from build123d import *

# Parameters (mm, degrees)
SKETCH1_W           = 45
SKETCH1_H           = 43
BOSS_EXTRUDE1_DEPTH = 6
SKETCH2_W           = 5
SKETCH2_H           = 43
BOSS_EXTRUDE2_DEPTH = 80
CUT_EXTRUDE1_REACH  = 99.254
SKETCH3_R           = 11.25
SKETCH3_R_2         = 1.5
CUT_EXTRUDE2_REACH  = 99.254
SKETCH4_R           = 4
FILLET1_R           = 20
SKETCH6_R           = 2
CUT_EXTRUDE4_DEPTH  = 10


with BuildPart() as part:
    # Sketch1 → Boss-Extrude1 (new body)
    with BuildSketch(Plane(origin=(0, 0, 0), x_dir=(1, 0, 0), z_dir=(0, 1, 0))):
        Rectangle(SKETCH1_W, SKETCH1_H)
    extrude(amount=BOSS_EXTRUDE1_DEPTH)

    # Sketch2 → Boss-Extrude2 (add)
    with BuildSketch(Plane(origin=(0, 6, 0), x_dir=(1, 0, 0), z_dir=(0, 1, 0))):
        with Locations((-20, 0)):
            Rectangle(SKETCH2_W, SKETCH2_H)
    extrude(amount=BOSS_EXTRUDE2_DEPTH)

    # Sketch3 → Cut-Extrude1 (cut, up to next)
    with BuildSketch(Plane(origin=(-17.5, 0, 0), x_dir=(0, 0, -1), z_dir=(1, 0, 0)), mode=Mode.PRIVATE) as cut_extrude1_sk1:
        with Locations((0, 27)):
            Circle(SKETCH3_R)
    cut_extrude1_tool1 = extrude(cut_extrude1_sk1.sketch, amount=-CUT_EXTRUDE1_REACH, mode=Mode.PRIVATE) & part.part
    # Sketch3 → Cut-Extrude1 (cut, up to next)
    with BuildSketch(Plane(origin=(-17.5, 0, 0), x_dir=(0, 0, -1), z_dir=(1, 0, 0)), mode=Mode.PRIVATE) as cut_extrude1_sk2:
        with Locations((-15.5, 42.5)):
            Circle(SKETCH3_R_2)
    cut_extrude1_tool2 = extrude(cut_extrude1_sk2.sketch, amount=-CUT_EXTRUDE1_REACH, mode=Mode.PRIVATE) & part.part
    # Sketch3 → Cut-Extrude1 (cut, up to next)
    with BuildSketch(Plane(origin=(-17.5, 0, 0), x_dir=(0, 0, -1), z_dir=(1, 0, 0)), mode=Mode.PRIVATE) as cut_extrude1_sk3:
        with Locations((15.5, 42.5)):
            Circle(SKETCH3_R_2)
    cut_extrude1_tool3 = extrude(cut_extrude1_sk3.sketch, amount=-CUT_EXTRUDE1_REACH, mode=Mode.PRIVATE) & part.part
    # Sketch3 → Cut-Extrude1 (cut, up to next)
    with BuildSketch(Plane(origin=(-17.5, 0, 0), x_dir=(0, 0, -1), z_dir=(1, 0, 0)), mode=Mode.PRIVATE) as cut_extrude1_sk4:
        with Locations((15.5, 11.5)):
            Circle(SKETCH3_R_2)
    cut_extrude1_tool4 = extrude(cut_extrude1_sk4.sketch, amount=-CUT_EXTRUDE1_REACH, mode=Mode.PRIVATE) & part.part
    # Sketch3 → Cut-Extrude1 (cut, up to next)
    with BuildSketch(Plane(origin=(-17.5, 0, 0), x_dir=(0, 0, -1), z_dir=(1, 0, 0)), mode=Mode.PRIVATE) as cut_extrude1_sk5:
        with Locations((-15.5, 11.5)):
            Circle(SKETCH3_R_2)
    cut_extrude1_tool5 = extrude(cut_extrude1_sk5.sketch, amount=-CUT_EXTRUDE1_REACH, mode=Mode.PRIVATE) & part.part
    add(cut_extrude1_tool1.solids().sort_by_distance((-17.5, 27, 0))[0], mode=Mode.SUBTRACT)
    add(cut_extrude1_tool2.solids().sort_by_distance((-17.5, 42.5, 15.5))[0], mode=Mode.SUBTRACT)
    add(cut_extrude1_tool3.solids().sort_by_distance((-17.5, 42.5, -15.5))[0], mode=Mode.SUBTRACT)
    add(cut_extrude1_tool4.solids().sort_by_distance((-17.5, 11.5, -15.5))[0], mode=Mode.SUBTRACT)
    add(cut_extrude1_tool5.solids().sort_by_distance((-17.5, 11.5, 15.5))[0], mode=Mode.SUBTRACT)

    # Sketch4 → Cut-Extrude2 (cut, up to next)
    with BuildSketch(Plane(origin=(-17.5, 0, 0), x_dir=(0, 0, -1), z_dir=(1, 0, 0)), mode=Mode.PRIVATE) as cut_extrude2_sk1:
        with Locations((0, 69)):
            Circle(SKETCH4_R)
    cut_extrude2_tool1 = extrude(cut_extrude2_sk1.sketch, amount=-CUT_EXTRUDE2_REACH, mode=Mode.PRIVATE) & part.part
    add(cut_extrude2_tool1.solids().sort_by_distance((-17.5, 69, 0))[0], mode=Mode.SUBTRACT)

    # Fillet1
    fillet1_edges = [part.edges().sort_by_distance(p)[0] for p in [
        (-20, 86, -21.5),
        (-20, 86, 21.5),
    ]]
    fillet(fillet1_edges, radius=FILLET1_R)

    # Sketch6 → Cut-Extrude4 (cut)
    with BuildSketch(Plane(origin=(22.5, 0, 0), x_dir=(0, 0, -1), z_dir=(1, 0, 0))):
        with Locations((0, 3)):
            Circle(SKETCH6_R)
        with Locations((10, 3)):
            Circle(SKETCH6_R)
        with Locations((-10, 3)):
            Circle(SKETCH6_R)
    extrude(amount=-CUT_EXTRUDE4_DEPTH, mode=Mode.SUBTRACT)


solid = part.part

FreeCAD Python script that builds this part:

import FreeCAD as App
import Part
import Sketcher
Q = App.Units.Quantity


def edges_at(feature, points):
    """Names of the edges that pass closest to the given points."""
    edges = feature.Shape.Edges
    near = lambda p: min(range(len(edges)), key=lambda i: edges[i].distToShape(Part.Vertex(*p))[0])
    return sorted({f"Edge{near(p) + 1}" for p in points})


def add_polygon(sketch, points):
    """Adds a closed chain of lines whose ends are joined by coincident constraints."""
    first, n = sketch.GeometryCount, len(points)
    for a, b in zip(points, points[1:] + points[:1]):
        sketch.addGeometry(Part.LineSegment(App.Vector(*a, 0), App.Vector(*b, 0)), False)
    for i in range(n):
        sketch.addConstraint(Sketcher.Constraint("Coincident", first + i, 2, first + (i + 1) % n, 1))

doc = App.newDocument("Part")
body = doc.addObject("PartDesign::Body", "Body")

sketch1 = body.newObject("Sketcher::SketchObject", "Sketch")
sketch1.AttachmentSupport = (doc.getObject("XZ_Plane"), [""])
sketch1.MapMode = "FlatFace"
add_polygon(sketch1, [(-22.5, -21.5), (-22.5, 21.5), (22.5, 21.5), (22.5, -21.5)])
sketch1.addConstraint([
    Sketcher.Constraint("Vertical", 0),
    Sketcher.Constraint("Horizontal", 1),
    Sketcher.Constraint("Vertical", 2),
    Sketcher.Constraint("Horizontal", 3),
    Sketcher.Constraint("Symmetric", 0, 2, 2, 2, -1, 1),
    Sketcher.Constraint("DistanceX", 1, 1, 1, 2, Q("45 mm")),
    Sketcher.Constraint("DistanceY", 0, 1, 0, 2, Q("43 mm")),
])
pad1 = body.newObject("PartDesign::Pad", "Pad")
pad1.Profile = sketch1
pad1.Length = 6
pad1.Reversed = True

sketch2 = body.newObject("Sketcher::SketchObject", "Sketch001")
sketch2.AttachmentSupport = (doc.getObject("XZ_Plane"), [""])
sketch2.MapMode = "FlatFace"
sketch2.AttachmentOffset = App.Placement(App.Vector(0, 0, -6), App.Rotation())
add_polygon(sketch2, [(-22.5, -21.5), (-22.5, 21.5), (-17.5, 21.5), (-17.5, -21.5)])
sketch2.addConstraint([
    Sketcher.Constraint("Vertical", 0),
    Sketcher.Constraint("Horizontal", 1),
    Sketcher.Constraint("Vertical", 2),
    Sketcher.Constraint("Horizontal", 3),
    Sketcher.Constraint("DistanceX", 1, 1, 1, 2, Q("5 mm")),
    Sketcher.Constraint("DistanceY", 0, 1, 0, 2, Q("43 mm")),
    Sketcher.Constraint("DistanceX", 0, 2, -1, 1, Q("22.5 mm")),
    Sketcher.Constraint("DistanceY", -1, 1, 0, 2, Q("21.5 mm")),
])
pad2 = body.newObject("PartDesign::Pad", "Pad001")
pad2.Profile = sketch2
pad2.Length = 80
pad2.Reversed = True

sketch3 = body.newObject("Sketcher::SketchObject", "Sketch002")
sketch3.AttachmentSupport = (doc.getObject("YZ_Plane"), [""])
sketch3.MapMode = "FlatFace"
sketch3.AttachmentOffset = App.Placement(App.Vector(0, 0, -17.5), App.Rotation())
sketch3.addGeometry(Part.Circle(App.Vector(27, 0, 0), App.Vector(0, 0, 1), 11.25), False)
sketch3.addConstraint([
    Sketcher.Constraint("PointOnObject", 0, 3, -1),
    Sketcher.Constraint("Diameter", 0, Q("22.5 mm")),
    Sketcher.Constraint("DistanceX", -1, 1, 0, 3, Q("27 mm")),
])
pocket1 = body.newObject("PartDesign::Pocket", "Pocket")
pocket1.Profile = sketch3
pocket1.Type = "UpToFirst"

sketch4 = body.newObject("Sketcher::SketchObject", "Sketch003")
sketch4.AttachmentSupport = (doc.getObject("YZ_Plane"), [""])
sketch4.MapMode = "FlatFace"
sketch4.AttachmentOffset = App.Placement(App.Vector(0, 0, -17.5), App.Rotation())
sketch4.addGeometry(Part.Circle(App.Vector(42.5, 15.5, 0), App.Vector(0, 0, 1), 1.5), False)
sketch4.addConstraint([
    Sketcher.Constraint("Diameter", 0, Q("3 mm")),
    Sketcher.Constraint("DistanceX", -1, 1, 0, 3, Q("42.5 mm")),
    Sketcher.Constraint("DistanceY", -1, 1, 0, 3, Q("15.5 mm")),
])
pocket2 = body.newObject("PartDesign::Pocket", "Pocket001")
pocket2.Profile = sketch4
pocket2.Type = "UpToFirst"

sketch5 = body.newObject("Sketcher::SketchObject", "Sketch004")
sketch5.AttachmentSupport = (doc.getObject("YZ_Plane"), [""])
sketch5.MapMode = "FlatFace"
sketch5.AttachmentOffset = App.Placement(App.Vector(0, 0, -17.5), App.Rotation())
sketch5.addGeometry(Part.Circle(App.Vector(42.5, -15.5, 0), App.Vector(0, 0, 1), 1.5), False)
sketch5.addConstraint([
    Sketcher.Constraint("Diameter", 0, Q("3 mm")),
    Sketcher.Constraint("DistanceX", -1, 1, 0, 3, Q("42.5 mm")),
    Sketcher.Constraint("DistanceY", 0, 3, -1, 1, Q("15.5 mm")),
])
pocket3 = body.newObject("PartDesign::Pocket", "Pocket002")
pocket3.Profile = sketch5
pocket3.Type = "UpToFirst"

sketch6 = body.newObject("Sketcher::SketchObject", "Sketch005")
sketch6.AttachmentSupport = (doc.getObject("YZ_Plane"), [""])
sketch6.MapMode = "FlatFace"
sketch6.AttachmentOffset = App.Placement(App.Vector(0, 0, -17.5), App.Rotation())
sketch6.addGeometry(Part.Circle(App.Vector(11.5, -15.5, 0), App.Vector(0, 0, 1), 1.5), False)
sketch6.addConstraint([
    Sketcher.Constraint("Diameter", 0, Q("3 mm")),
    Sketcher.Constraint("DistanceX", -1, 1, 0, 3, Q("11.5 mm")),
    Sketcher.Constraint("DistanceY", 0, 3, -1, 1, Q("15.5 mm")),
])
pocket4 = body.newObject("PartDesign::Pocket", "Pocket003")
pocket4.Profile = sketch6
pocket4.Type = "UpToFirst"

sketch7 = body.newObject("Sketcher::SketchObject", "Sketch006")
sketch7.AttachmentSupport = (doc.getObject("YZ_Plane"), [""])
sketch7.MapMode = "FlatFace"
sketch7.AttachmentOffset = App.Placement(App.Vector(0, 0, -17.5), App.Rotation())
sketch7.addGeometry(Part.Circle(App.Vector(11.5, 15.5, 0), App.Vector(0, 0, 1), 1.5), False)
sketch7.addConstraint([
    Sketcher.Constraint("Diameter", 0, Q("3 mm")),
    Sketcher.Constraint("DistanceX", -1, 1, 0, 3, Q("11.5 mm")),
    Sketcher.Constraint("DistanceY", -1, 1, 0, 3, Q("15.5 mm")),
])
pocket5 = body.newObject("PartDesign::Pocket", "Pocket004")
pocket5.Profile = sketch7
pocket5.Type = "UpToFirst"

sketch8 = body.newObject("Sketcher::SketchObject", "Sketch007")
sketch8.AttachmentSupport = (doc.getObject("YZ_Plane"), [""])
sketch8.MapMode = "FlatFace"
sketch8.AttachmentOffset = App.Placement(App.Vector(0, 0, -17.5), App.Rotation())
sketch8.addGeometry(Part.Circle(App.Vector(69, 0, 0), App.Vector(0, 0, 1), 4), False)
sketch8.addConstraint([
    Sketcher.Constraint("PointOnObject", 0, 3, -1),
    Sketcher.Constraint("Diameter", 0, Q("8 mm")),
    Sketcher.Constraint("DistanceX", -1, 1, 0, 3, Q("69 mm")),
])
pocket6 = body.newObject("PartDesign::Pocket", "Pocket005")
pocket6.Profile = sketch8
pocket6.Type = "UpToFirst"
doc.recompute()

fillet = body.newObject("PartDesign::Fillet", "Fillet")
fillet.Base = (pocket6, edges_at(pocket6, [(-20, 86, -21.5), (-20, 86, 21.5)]))
fillet.Radius = 20

sketch9 = body.newObject("Sketcher::SketchObject", "Sketch008")
sketch9.AttachmentSupport = (doc.getObject("YZ_Plane"), [""])
sketch9.MapMode = "FlatFace"
sketch9.AttachmentOffset = App.Placement(App.Vector(0, 0, 22.5), App.Rotation())
sketch9.addGeometry([
    Part.Circle(App.Vector(3, 0, 0), App.Vector(0, 0, 1), 2),
    Part.Circle(App.Vector(3, -10, 0), App.Vector(0, 0, 1), 2),
    Part.Circle(App.Vector(3, 10, 0), App.Vector(0, 0, 1), 2),
], False)
sketch9.addConstraint([
    Sketcher.Constraint("Equal", 0, 1),
    Sketcher.Constraint("Equal", 1, 2),
    Sketcher.Constraint("Symmetric", 1, 3, 2, 3, -1),
    Sketcher.Constraint("PointOnObject", 0, 3, -1),
    Sketcher.Constraint("Vertical", 0, 3, 1, 3),
    Sketcher.Constraint("Diameter", 0, Q("4 mm")),
    Sketcher.Constraint("DistanceX", -1, 1, 0, 3, Q("3 mm")),
    Sketcher.Constraint("DistanceY", 1, 3, -1, 1, Q("10 mm")),
])
pocket7 = body.newObject("PartDesign::Pocket", "Pocket006")
pocket7.Profile = sketch9
pocket7.Length = 10

doc.recompute()
